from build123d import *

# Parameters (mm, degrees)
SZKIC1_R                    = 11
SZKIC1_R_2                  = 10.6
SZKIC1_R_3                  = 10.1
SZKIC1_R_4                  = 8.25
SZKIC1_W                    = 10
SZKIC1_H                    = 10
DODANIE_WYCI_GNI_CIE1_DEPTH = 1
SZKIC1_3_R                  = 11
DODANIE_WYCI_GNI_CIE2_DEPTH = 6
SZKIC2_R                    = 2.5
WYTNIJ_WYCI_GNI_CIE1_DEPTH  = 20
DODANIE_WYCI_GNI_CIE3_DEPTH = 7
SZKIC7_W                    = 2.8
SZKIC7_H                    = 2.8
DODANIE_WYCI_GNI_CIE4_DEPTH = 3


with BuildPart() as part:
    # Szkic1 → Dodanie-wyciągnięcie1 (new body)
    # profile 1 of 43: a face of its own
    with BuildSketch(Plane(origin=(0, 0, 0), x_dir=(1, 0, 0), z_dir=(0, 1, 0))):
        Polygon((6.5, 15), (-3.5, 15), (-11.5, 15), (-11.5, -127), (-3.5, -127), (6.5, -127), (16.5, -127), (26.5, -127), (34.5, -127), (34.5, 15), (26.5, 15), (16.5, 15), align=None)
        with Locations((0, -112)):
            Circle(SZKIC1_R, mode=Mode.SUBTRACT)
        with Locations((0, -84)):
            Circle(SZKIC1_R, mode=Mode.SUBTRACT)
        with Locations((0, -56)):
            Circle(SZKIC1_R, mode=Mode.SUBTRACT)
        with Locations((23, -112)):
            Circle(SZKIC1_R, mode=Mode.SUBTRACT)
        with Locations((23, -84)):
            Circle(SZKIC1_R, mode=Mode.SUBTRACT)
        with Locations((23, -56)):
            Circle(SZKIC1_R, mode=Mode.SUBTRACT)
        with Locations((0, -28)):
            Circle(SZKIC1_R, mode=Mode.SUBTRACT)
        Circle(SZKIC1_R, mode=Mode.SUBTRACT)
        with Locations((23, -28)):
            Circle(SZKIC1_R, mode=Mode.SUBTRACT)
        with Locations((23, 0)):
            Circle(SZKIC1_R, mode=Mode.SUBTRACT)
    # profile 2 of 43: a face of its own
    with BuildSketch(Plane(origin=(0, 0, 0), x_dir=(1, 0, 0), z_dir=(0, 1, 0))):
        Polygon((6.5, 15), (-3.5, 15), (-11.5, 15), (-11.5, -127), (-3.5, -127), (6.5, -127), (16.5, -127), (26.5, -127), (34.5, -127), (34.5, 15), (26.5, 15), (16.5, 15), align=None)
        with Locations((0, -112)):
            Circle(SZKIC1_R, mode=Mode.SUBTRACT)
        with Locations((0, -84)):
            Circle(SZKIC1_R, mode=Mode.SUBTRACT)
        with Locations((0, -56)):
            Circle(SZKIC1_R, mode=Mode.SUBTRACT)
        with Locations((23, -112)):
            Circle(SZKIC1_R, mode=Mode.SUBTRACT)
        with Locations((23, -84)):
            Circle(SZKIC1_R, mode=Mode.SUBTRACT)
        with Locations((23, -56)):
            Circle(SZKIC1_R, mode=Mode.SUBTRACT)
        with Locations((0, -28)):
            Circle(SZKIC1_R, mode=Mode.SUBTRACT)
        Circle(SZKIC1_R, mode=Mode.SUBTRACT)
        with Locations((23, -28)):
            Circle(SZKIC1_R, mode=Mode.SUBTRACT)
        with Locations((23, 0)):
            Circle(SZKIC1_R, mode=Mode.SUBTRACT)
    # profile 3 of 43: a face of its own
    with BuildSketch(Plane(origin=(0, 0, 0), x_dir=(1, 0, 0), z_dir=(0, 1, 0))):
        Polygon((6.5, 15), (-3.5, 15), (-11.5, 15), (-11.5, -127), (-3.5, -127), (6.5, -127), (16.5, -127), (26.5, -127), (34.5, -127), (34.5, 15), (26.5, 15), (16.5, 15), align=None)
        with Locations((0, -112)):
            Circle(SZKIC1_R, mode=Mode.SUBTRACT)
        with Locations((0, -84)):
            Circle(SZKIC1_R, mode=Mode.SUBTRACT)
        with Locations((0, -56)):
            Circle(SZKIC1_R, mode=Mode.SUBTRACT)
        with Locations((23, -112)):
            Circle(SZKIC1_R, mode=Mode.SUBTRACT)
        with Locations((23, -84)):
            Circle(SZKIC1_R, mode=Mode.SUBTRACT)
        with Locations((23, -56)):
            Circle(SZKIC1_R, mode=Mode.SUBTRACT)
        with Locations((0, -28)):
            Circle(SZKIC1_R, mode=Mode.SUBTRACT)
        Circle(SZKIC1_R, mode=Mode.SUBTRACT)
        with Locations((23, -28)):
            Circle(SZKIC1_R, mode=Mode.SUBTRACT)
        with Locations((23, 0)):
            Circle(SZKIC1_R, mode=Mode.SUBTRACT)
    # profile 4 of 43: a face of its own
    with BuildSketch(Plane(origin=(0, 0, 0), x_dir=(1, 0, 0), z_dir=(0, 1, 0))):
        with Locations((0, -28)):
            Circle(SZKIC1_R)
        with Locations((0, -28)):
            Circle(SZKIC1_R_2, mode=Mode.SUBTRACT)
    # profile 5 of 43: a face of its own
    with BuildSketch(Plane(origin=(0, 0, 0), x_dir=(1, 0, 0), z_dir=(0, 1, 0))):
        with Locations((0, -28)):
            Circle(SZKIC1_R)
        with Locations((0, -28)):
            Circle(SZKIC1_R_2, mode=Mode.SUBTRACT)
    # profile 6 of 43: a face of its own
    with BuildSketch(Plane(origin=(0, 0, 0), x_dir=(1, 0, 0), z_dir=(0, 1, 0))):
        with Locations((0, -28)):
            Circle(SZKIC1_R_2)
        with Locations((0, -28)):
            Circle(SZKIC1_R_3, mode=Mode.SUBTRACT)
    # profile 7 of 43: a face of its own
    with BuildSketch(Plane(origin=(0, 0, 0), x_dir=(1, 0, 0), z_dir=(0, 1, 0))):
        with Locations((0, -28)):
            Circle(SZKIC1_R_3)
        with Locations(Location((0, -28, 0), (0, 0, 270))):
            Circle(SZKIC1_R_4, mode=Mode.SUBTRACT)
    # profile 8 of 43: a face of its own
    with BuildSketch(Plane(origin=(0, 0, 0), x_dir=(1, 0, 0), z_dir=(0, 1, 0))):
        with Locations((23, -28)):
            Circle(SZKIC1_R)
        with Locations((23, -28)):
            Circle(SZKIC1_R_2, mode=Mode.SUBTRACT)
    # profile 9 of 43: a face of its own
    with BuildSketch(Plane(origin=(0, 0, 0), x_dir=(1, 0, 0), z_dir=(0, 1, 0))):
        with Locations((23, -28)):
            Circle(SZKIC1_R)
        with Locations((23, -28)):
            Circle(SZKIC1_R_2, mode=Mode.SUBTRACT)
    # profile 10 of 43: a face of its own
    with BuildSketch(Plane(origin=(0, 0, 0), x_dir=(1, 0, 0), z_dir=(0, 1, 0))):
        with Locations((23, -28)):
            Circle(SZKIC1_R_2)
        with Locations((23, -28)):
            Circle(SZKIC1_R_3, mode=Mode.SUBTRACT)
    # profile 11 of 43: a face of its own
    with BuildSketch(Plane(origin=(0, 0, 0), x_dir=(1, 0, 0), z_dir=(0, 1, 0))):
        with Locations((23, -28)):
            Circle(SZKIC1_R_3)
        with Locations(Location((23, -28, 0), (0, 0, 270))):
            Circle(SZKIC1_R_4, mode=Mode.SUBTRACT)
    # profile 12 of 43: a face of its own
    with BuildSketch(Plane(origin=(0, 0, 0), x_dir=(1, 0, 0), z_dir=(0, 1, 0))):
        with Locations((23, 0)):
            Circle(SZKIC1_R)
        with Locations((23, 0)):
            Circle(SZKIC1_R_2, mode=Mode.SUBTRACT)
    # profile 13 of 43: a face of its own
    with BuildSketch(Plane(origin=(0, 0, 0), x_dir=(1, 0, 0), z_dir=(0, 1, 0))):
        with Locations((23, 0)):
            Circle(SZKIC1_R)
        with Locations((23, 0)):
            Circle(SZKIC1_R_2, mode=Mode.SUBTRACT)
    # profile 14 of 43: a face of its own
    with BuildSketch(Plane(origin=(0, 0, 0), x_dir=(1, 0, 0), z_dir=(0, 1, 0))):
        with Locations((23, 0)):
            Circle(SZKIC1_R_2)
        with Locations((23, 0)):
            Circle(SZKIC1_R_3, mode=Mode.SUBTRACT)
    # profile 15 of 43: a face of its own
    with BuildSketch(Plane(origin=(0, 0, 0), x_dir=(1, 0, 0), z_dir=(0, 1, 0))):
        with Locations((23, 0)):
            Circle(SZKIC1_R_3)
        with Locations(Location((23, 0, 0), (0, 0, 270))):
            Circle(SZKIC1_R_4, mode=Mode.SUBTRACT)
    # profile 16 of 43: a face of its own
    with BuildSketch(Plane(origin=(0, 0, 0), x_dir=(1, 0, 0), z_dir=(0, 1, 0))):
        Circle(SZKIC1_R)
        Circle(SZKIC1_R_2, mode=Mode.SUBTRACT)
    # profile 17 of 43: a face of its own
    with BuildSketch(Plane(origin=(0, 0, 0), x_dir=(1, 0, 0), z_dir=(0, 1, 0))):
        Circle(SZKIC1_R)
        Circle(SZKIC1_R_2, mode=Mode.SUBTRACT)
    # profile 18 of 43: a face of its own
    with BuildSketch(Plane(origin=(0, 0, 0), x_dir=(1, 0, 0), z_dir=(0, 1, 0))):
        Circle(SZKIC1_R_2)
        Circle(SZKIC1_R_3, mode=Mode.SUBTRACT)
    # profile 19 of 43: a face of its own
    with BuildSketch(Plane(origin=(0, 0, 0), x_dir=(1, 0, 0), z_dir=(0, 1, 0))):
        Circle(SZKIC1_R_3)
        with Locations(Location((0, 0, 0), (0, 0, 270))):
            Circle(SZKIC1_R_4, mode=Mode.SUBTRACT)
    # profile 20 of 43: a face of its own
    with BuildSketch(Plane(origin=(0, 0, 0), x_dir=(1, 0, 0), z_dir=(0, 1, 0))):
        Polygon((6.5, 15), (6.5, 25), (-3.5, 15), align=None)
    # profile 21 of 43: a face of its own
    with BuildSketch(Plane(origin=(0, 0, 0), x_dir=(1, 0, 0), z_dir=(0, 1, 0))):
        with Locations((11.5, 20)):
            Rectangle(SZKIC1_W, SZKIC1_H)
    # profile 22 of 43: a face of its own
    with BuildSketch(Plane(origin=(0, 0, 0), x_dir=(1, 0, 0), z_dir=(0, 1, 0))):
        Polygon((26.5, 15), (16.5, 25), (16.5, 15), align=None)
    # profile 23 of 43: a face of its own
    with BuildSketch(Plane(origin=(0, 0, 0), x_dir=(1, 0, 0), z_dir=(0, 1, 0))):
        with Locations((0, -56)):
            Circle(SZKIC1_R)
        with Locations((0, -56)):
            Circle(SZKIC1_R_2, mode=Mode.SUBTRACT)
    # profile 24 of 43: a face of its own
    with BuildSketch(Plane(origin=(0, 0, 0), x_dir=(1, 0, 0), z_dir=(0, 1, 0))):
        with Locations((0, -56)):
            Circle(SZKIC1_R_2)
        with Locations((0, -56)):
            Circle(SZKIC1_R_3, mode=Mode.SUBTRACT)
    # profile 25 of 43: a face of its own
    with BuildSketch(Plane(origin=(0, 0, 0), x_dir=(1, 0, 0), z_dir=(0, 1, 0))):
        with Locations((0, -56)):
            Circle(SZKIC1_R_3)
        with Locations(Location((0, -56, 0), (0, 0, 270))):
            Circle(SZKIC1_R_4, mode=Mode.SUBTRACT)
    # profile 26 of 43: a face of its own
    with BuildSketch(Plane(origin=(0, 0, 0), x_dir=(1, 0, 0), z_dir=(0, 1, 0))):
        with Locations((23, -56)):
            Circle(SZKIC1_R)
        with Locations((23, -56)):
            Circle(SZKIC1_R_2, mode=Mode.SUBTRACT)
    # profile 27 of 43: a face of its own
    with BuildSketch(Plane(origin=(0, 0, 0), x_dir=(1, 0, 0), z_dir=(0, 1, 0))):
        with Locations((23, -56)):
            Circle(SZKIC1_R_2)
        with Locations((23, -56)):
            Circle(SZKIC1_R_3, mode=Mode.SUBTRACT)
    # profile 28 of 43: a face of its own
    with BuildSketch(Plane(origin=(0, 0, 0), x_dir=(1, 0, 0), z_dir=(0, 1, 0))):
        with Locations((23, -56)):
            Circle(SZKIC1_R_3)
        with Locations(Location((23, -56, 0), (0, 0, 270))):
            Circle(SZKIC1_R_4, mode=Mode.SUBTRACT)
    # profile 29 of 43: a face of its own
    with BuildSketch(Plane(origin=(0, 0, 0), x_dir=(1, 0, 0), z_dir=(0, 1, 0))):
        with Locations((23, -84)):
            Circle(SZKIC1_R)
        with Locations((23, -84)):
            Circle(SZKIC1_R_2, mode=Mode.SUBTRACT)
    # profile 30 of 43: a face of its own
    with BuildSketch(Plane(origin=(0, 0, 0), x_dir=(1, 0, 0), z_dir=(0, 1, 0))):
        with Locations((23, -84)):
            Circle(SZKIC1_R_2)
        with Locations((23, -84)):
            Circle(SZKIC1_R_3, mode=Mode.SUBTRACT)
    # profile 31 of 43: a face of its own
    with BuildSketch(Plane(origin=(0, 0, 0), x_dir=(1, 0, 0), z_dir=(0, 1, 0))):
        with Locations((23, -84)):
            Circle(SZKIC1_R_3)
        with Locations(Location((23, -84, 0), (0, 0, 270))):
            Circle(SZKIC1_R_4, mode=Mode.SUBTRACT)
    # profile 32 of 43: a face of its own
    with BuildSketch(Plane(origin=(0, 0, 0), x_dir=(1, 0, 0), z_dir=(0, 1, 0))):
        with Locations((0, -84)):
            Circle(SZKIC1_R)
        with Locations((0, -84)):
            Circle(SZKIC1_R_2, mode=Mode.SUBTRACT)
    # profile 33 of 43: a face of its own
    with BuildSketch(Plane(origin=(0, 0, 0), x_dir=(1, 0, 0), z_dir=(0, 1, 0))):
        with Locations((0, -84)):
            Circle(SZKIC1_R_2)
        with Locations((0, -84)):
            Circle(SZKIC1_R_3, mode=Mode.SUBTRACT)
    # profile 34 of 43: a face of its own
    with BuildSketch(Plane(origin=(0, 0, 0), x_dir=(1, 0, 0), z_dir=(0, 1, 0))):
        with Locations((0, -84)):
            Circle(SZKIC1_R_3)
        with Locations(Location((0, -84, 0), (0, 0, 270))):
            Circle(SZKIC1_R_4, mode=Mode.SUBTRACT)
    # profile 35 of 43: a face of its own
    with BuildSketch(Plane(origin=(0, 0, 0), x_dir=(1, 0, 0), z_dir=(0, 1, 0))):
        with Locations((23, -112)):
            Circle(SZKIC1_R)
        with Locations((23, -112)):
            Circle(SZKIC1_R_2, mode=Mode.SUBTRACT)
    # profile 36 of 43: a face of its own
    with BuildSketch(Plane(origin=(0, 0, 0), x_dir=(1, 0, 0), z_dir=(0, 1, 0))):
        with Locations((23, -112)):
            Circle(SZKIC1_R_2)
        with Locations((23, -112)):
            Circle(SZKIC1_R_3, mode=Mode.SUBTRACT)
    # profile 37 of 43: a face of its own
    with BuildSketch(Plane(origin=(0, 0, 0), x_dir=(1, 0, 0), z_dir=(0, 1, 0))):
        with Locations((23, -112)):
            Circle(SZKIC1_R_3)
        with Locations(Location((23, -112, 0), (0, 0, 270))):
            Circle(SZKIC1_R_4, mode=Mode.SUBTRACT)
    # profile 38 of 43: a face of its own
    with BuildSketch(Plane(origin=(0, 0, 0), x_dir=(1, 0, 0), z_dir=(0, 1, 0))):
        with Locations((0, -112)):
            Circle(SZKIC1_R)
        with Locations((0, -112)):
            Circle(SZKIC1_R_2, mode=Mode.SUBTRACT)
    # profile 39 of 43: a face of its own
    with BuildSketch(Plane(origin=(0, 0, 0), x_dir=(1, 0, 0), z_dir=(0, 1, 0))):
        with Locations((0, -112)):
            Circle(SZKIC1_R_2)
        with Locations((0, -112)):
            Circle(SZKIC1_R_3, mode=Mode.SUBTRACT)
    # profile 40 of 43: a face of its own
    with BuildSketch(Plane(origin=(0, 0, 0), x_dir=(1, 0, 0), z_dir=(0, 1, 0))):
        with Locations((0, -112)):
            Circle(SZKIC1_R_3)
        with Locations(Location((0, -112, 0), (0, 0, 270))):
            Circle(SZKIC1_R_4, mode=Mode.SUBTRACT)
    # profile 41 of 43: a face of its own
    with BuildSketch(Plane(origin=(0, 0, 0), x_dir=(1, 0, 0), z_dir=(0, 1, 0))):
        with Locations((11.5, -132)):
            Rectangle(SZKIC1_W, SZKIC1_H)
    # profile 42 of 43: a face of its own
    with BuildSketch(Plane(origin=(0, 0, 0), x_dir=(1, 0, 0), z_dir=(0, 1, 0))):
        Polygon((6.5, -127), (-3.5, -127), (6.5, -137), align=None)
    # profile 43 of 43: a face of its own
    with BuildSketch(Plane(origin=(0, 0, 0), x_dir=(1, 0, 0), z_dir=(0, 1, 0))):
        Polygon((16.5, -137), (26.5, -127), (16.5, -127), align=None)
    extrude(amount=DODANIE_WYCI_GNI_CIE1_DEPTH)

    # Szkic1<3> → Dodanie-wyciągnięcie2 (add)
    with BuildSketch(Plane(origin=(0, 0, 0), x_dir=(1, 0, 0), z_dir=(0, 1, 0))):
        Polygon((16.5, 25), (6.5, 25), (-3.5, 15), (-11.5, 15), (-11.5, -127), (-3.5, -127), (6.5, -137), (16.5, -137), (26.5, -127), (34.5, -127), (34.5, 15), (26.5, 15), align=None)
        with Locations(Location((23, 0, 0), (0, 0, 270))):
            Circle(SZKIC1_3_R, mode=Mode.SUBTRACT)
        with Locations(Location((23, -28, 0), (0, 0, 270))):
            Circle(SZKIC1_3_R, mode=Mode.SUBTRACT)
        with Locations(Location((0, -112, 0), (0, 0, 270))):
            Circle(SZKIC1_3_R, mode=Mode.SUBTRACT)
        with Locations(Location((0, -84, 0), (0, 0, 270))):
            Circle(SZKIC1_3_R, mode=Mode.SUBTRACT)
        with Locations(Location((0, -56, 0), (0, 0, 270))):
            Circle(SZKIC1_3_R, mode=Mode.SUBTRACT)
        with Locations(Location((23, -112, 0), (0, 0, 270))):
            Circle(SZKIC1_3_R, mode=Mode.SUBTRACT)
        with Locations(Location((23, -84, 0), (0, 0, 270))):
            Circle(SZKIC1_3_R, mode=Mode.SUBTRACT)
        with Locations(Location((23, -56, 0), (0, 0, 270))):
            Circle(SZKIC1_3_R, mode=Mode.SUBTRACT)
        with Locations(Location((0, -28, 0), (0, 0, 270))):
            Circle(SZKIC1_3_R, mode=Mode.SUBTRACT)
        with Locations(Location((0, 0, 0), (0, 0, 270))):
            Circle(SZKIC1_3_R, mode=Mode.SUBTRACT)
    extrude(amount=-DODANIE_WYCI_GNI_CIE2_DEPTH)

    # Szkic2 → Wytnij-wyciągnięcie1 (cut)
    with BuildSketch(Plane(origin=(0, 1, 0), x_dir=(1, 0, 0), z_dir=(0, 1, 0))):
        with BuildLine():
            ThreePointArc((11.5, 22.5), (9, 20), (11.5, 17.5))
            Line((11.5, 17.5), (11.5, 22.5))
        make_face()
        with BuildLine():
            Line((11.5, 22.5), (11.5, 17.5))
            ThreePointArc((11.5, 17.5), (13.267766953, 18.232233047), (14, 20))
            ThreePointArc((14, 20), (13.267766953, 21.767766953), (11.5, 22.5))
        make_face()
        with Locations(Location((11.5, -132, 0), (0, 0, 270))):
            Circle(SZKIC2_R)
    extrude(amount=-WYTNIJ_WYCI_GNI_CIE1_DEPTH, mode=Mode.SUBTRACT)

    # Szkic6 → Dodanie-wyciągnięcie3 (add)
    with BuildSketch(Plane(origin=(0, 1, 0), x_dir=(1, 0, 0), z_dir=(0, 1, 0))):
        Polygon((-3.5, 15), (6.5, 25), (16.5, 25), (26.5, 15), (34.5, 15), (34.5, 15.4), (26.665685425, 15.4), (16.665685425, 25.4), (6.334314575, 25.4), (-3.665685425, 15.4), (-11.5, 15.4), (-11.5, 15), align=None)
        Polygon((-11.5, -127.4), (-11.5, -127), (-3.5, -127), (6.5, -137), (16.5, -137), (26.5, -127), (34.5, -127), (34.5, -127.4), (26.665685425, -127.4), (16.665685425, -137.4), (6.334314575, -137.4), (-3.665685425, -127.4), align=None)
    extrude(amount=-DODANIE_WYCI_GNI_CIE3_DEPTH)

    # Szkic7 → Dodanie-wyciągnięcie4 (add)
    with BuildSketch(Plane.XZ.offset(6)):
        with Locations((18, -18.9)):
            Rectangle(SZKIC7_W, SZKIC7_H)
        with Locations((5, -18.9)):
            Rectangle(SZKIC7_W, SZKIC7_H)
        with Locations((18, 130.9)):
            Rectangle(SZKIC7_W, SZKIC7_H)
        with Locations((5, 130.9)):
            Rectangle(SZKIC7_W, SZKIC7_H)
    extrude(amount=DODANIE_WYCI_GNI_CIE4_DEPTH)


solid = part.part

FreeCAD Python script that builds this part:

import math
import FreeCAD as App
import Part
import Sketcher
from FreeCAD import Vector
Q = App.Units.Quantity

doc = App.newDocument("Part")
body = doc.addObject("PartDesign::Body", "Body")

sketch1 = body.newObject("Sketcher::SketchObject", "Sketch")
sketch1.AttachmentSupport = (doc.getObject("XZ_Plane"), [""])
sketch1.MapMode = "FlatFace"
sketch1.addGeometry(Part.LineSegment(Vector(-12, -15, 0), Vector(-12, 127, 0)), False)
sketch1.addGeometry(Part.LineSegment(Vector(-12, 127, 0), Vector(-4, 127, 0)), False)
sketch1.addGeometry(Part.LineSegment(Vector(-4, 127, 0), Vector(6, 137, 0)), False)
sketch1.addGeometry(Part.LineSegment(Vector(6, 137, 0), Vector(16, 137, 0)), False)
sketch1.addGeometry(Part.LineSegment(Vector(16, 137, 0), Vector(26, 127, 0)), False)
sketch1.addGeometry(Part.LineSegment(Vector(26, 127, 0), Vector(34, 127, 0)), False)
sketch1.addGeometry(Part.LineSegment(Vector(34, 127, 0), Vector(34, -15, 0)), False)
sketch1.addGeometry(Part.LineSegment(Vector(34, -15, 0), Vector(26, -15, 0)), False)
sketch1.addGeometry(Part.LineSegment(Vector(26, -15, 0), Vector(16, -25, 0)), False)
sketch1.addGeometry(Part.LineSegment(Vector(16, -25, 0), Vector(6, -25, 0)), False)
sketch1.addGeometry(Part.LineSegment(Vector(6, -25, 0), Vector(-4, -15, 0)), False)
sketch1.addGeometry(Part.LineSegment(Vector(-4, -15, 0), Vector(-12, -15, 0)), False)
sketch1.addGeometry(Part.Circle(Vector(0, 112, 0), Vector(0, 0, 1), 8), False)
sketch1.addGeometry(Part.Circle(Vector(0, 84, 0), Vector(0, 0, 1), 8), False)
sketch1.addGeometry(Part.Circle(Vector(23, 112, 0), Vector(0, 0, 1), 8), False)
sketch1.addGeometry(Part.Circle(Vector(23, 84, 0), Vector(0, 0, 1), 8), False)
sketch1.addGeometry(Part.Circle(Vector(0, 56, 0), Vector(0, 0, 1), 8), False)
sketch1.addGeometry(Part.Circle(Vector(0, 28, 0), Vector(0, 0, 1), 8), False)
sketch1.addGeometry(Part.Circle(Vector(0, 0, 0), Vector(0, 0, 1), 8), False)
sketch1.addGeometry(Part.Circle(Vector(23, 56, 0), Vector(0, 0, 1), 8), False)
sketch1.addGeometry(Part.Circle(Vector(23, 28, 0), Vector(0, 0, 1), 8), False)
sketch1.addGeometry(Part.Circle(Vector(23, 0, 0), Vector(0, 0, 1), 8), False)
sketch1.addConstraint(Sketcher.Constraint("Coincident", 0, 2, 1, 1))
sketch1.addConstraint(Sketcher.Constraint("Coincident", 1, 2, 2, 1))
sketch1.addConstraint(Sketcher.Constraint("Coincident", 2, 2, 3, 1))
sketch1.addConstraint(Sketcher.Constraint("Coincident", 3, 2, 4, 1))
sketch1.addConstraint(Sketcher.Constraint("Coincident", 4, 2, 5, 1))
sketch1.addConstraint(Sketcher.Constraint("Coincident", 5, 2, 6, 1))
sketch1.addConstraint(Sketcher.Constraint("Coincident", 6, 2, 7, 1))
sketch1.addConstraint(Sketcher.Constraint("Coincident", 7, 2, 8, 1))
sketch1.addConstraint(Sketcher.Constraint("Coincident", 8, 2, 9, 1))
sketch1.addConstraint(Sketcher.Constraint("Coincident", 9, 2, 10, 1))
sketch1.addConstraint(Sketcher.Constraint("Coincident", 10, 2, 11, 1))
sketch1.addConstraint(Sketcher.Constraint("Coincident", 11, 2, 0, 1))
sketch1.addConstraint(Sketcher.Constraint("Vertical", 0))
sketch1.addConstraint(Sketcher.Constraint("Horizontal", 1))
sketch1.addConstraint(Sketcher.Constraint("Horizontal", 3))
sketch1.addConstraint(Sketcher.Constraint("Horizontal", 5))
sketch1.addConstraint(Sketcher.Constraint("Vertical", 6))
sketch1.addConstraint(Sketcher.Constraint("Horizontal", 7))
sketch1.addConstraint(Sketcher.Constraint("Horizontal", 9))
sketch1.addConstraint(Sketcher.Constraint("Horizontal", 11))
sketch1.addConstraint(Sketcher.Constraint("Coincident", 18, 3, -1, 1))
sketch1.addConstraint(Sketcher.Constraint("Equal", 12, 13))
sketch1.addConstraint(Sketcher.Constraint("Equal", 13, 14))
sketch1.addConstraint(Sketcher.Constraint("Equal", 14, 15))
sketch1.addConstraint(Sketcher.Constraint("Equal", 15, 16))
sketch1.addConstraint(Sketcher.Constraint("Equal", 16, 17))
sketch1.addConstraint(Sketcher.Constraint("Equal", 17, 18))
sketch1.addConstraint(Sketcher.Constraint("Equal", 18, 19))
sketch1.addConstraint(Sketcher.Constraint("Equal", 19, 20))
sketch1.addConstraint(Sketcher.Constraint("Equal", 20, 21))
sketch1.addConstraint(Sketcher.Constraint("PointOnObject", 12, 3, -2))
sketch1.addConstraint(Sketcher.Constraint("PointOnObject", 13, 3, -2))
sketch1.addConstraint(Sketcher.Constraint("PointOnObject", 16, 3, -2))
sketch1.addConstraint(Sketcher.Constraint("PointOnObject", 17, 3, -2))
sketch1.addConstraint(Sketcher.Constraint("PointOnObject", 21, 3, -1))
sketch1.addConstraint(Sketcher.Constraint("Perpendicular", 2, 4))
sketch1.addConstraint(Sketcher.Constraint("Perpendicular", 4, 8))
sketch1.addConstraint(Sketcher.Constraint("Perpendicular", 8, 10))
sketch1.addConstraint(Sketcher.Constraint("Horizontal", 12, 3, 14, 3))
sketch1.addConstraint(Sketcher.Constraint("Horizontal", 13, 3, 15, 3))
sketch1.addConstraint(Sketcher.Constraint("Horizontal", 16, 3, 19, 3))
sketch1.addConstraint(Sketcher.Constraint("Horizontal", 17, 3, 20, 3))
sketch1.addConstraint(Sketcher.Constraint("Horizontal", 1, 2, 4, 2))
sketch1.addConstraint(Sketcher.Constraint("Horizontal", 7, 2, 10, 2))
sketch1.addConstraint(Sketcher.Constraint("Vertical", 14, 3, 15, 3))
sketch1.addConstraint(Sketcher.Constraint("Vertical", 15, 3, 19, 3))
sketch1.addConstraint(Sketcher.Constraint("Vertical", 19, 3, 20, 3))
sketch1.addConstraint(Sketcher.Constraint("Vertical", 20, 3, 21, 3))
sketch1.addConstraint(Sketcher.Constraint("Vertical", 4, 2, 7, 2))
sketch1.addConstraint(Sketcher.Constraint("Vertical", 3, 2, 8, 2))
sketch1.addConstraint(Sketcher.Constraint("Vertical", 2, 2, 9, 2))
sketch1.addConstraint(Sketcher.Constraint("Vertical", 1, 2, 10, 2))
sketch1.addConstraint(Sketcher.Constraint("Equal", 1, 5))
sketch1.addConstraint(Sketcher.Constraint("Diameter", 12, Q("16.5 mm")))
sketch1.addConstraint(Sketcher.Constraint("DistanceX", 1, 1, 1, 2, Q("8 mm")))
sketch1.addConstraint(Sketcher.Constraint("DistanceX", 3, 1, 3, 2, Q("10 mm")))
sketch1.addConstraint(Sketcher.Constraint("DistanceY", 0, 1, 0, 2, Q("142 mm")))
sketch1.addConstraint(Sketcher.Constraint("DistanceY", -1, 1, 12, 3, Q("112 mm")))
sketch1.addConstraint(Sketcher.Constraint("DistanceY", -1, 1, 13, 3, Q("84 mm")))
sketch1.addConstraint(Sketcher.Constraint("DistanceX", -1, 1, 14, 3, Q("23 mm")))
sketch1.addConstraint(Sketcher.Constraint("DistanceY", -1, 1, 16, 3, Q("56 mm")))
sketch1.addConstraint(Sketcher.Constraint("DistanceY", -1, 1, 17, 3, Q("28 mm")))
sketch1.addConstraint(Sketcher.Constraint("DistanceY", -1, 1, 0, 2, Q("127 mm")))
sketch1.addConstraint(Sketcher.Constraint("DistanceY", -1, 1, 2, 2, Q("137 mm")))
sketch1.addConstraint(Sketcher.Constraint("DistanceX", 0, 2, -1, 1, Q("11.5 mm")))
pad1 = body.newObject("PartDesign::Pad", "Pad")
pad1.Profile = sketch1
pad1.Length = 1
pad1.Reversed = True

sketch2 = body.newObject("Sketcher::SketchObject", "Sketch001")
sketch2.AttachmentSupport = (doc.getObject("XZ_Plane"), [""])
sketch2.MapMode = "FlatFace"
sketch2.addGeometry(Part.LineSegment(Vector(16, -25, 0), Vector(6, -25, 0)), False)
sketch2.addGeometry(Part.LineSegment(Vector(6, -25, 0), Vector(-4, -15, 0)), False)
sketch2.addGeometry(Part.LineSegment(Vector(-4, -15, 0), Vector(-12, -15, 0)), False)
sketch2.addGeometry(Part.LineSegment(Vector(-12, -15, 0), Vector(-12, 127, 0)), False)
sketch2.addGeometry(Part.LineSegment(Vector(-12, 127, 0), Vector(-4, 127, 0)), False)
sketch2.addGeometry(Part.LineSegment(Vector(-4, 127, 0), Vector(6, 137, 0)), False)
sketch2.addGeometry(Part.LineSegment(Vector(6, 137, 0), Vector(16, 137, 0)), False)
sketch2.addGeometry(Part.LineSegment(Vector(16, 137, 0), Vector(26, 127, 0)), False)
sketch2.addGeometry(Part.LineSegment(Vector(26, 127, 0), Vector(34, 127, 0)), False)
sketch2.addGeometry(Part.LineSegment(Vector(34, 127, 0), Vector(34, -15, 0)), False)
sketch2.addGeometry(Part.LineSegment(Vector(34, -15, 0), Vector(26, -15, 0)), False)
sketch2.addGeometry(Part.LineSegment(Vector(26, -15, 0), Vector(16, -25, 0)), False)
sketch2.addGeometry(Part.Circle(Vector(0, 112, 0), Vector(0, 0, 1), 11), False)
sketch2.addGeometry(Part.Circle(Vector(0, 84, 0), Vector(0, 0, 1), 11), False)
sketch2.addGeometry(Part.Circle(Vector(23, 112, 0), Vector(0, 0, 1), 11), False)
sketch2.addGeometry(Part.Circle(Vector(23, 84, 0), Vector(0, 0, 1), 11), False)
sketch2.addGeometry(Part.Circle(Vector(0, 56, 0), Vector(0, 0, 1), 11), False)
sketch2.addGeometry(Part.Circle(Vector(0, 28, 0), Vector(0, 0, 1), 11), False)
sketch2.addGeometry(Part.Circle(Vector(0, 0, 0), Vector(0, 0, 1), 11), False)
sketch2.addGeometry(Part.Circle(Vector(23, 56, 0), Vector(0, 0, 1), 11), False)
sketch2.addGeometry(Part.Circle(Vector(23, 28, 0), Vector(0, 0, 1), 11), False)
sketch2.addGeometry(Part.Circle(Vector(23, 0, 0), Vector(0, 0, 1), 11), False)
sketch2.addConstraint(Sketcher.Constraint("Coincident", 0, 2, 1, 1))
sketch2.addConstraint(Sketcher.Constraint("Coincident", 1, 2, 2, 1))
sketch2.addConstraint(Sketcher.Constraint("Coincident", 2, 2, 3, 1))
sketch2.addConstraint(Sketcher.Constraint("Coincident", 3, 2, 4, 1))
sketch2.addConstraint(Sketcher.Constraint("Coincident", 4, 2, 5, 1))
sketch2.addConstraint(Sketcher.Constraint("Coincident", 5, 2, 6, 1))
sketch2.addConstraint(Sketcher.Constraint("Coincident", 6, 2, 7, 1))
sketch2.addConstraint(Sketcher.Constraint("Coincident", 7, 2, 8, 1))
sketch2.addConstraint(Sketcher.Constraint("Coincident", 8, 2, 9, 1))
sketch2.addConstraint(Sketcher.Constraint("Coincident", 9, 2, 10, 1))
sketch2.addConstraint(Sketcher.Constraint("Coincident", 10, 2, 11, 1))
sketch2.addConstraint(Sketcher.Constraint("Coincident", 11, 2, 0, 1))
sketch2.addConstraint(Sketcher.Constraint("Horizontal", 0))
sketch2.addConstraint(Sketcher.Constraint("Horizontal", 2))
sketch2.addConstraint(Sketcher.Constraint("Vertical", 3))
sketch2.addConstraint(Sketcher.Constraint("Horizontal", 4))
sketch2.addConstraint(Sketcher.Constraint("Horizontal", 6))
sketch2.addConstraint(Sketcher.Constraint("Horizontal", 8))
sketch2.addConstraint(Sketcher.Constraint("Vertical", 9))
sketch2.addConstraint(Sketcher.Constraint("Horizontal", 10))
sketch2.addConstraint(Sketcher.Constraint("Coincident", 18, 3, -1, 1))
sketch2.addConstraint(Sketcher.Constraint("Equal", 12, 13))
sketch2.addConstraint(Sketcher.Constraint("Equal", 13, 14))
sketch2.addConstraint(Sketcher.Constraint("Equal", 14, 15))
sketch2.addConstraint(Sketcher.Constraint("Equal", 15, 16))
sketch2.addConstraint(Sketcher.Constraint("Equal", 16, 17))
sketch2.addConstraint(Sketcher.Constraint("Equal", 17, 18))
sketch2.addConstraint(Sketcher.Constraint("Equal", 18, 19))
sketch2.addConstraint(Sketcher.Constraint("Equal", 19, 20))
sketch2.addConstraint(Sketcher.Constraint("Equal", 20, 21))
sketch2.addConstraint(Sketcher.Constraint("PointOnObject", 12, 3, -2))
sketch2.addConstraint(Sketcher.Constraint("PointOnObject", 13, 3, -2))
sketch2.addConstraint(Sketcher.Constraint("PointOnObject", 16, 3, -2))
sketch2.addConstraint(Sketcher.Constraint("PointOnObject", 17, 3, -2))
sketch2.addConstraint(Sketcher.Constraint("PointOnObject", 21, 3, -1))
sketch2.addConstraint(Sketcher.Constraint("Perpendicular", 1, 5))
sketch2.addConstraint(Sketcher.Constraint("Perpendicular", 5, 7))
sketch2.addConstraint(Sketcher.Constraint("Perpendicular", 7, 11))
sketch2.addConstraint(Sketcher.Constraint("Horizontal", 12, 3, 14, 3))
sketch2.addConstraint(Sketcher.Constraint("Horizontal", 13, 3, 15, 3))
sketch2.addConstraint(Sketcher.Constraint("Horizontal", 16, 3, 19, 3))
sketch2.addConstraint(Sketcher.Constraint("Horizontal", 17, 3, 20, 3))
sketch2.addConstraint(Sketcher.Constraint("Horizontal", 4, 2, 7, 2))
sketch2.addConstraint(Sketcher.Constraint("Horizontal", 2, 2, 9, 2))
sketch2.addConstraint(Sketcher.Constraint("Vertical", 14, 3, 15, 3))
sketch2.addConstraint(Sketcher.Constraint("Vertical", 15, 3, 19, 3))
sketch2.addConstraint(Sketcher.Constraint("Vertical", 19, 3, 20, 3))
sketch2.addConstraint(Sketcher.Constraint("Vertical", 20, 3, 21, 3))
sketch2.addConstraint(Sketcher.Constraint("Vertical", 1, 2, 4, 2))
sketch2.addConstraint(Sketcher.Constraint("Vertical", 0, 2, 5, 2))
sketch2.addConstraint(Sketcher.Constraint("Vertical", 7, 2, 10, 2))
sketch2.addConstraint(Sketcher.Constraint("Vertical", 6, 2, 11, 2))
sketch2.addConstraint(Sketcher.Constraint("Equal", 4, 8))
sketch2.addConstraint(Sketcher.Constraint("Diameter", 12, Q("22 mm")))
sketch2.addConstraint(Sketcher.Constraint("DistanceX", 0, 2, 0, 1, Q("10 mm")))
sketch2.addConstraint(Sketcher.Constraint("DistanceX", 2, 2, 2, 1, Q("8 mm")))
sketch2.addConstraint(Sketcher.Constraint("DistanceY", 3, 1, 3, 2, Q("142 mm")))
sketch2.addConstraint(Sketcher.Constraint("DistanceY", -1, 1, 12, 3, Q("112 mm")))
sketch2.addConstraint(Sketcher.Constraint("DistanceY", -1, 1, 13, 3, Q("84 mm")))
sketch2.addConstraint(Sketcher.Constraint("DistanceX", -1, 1, 14, 3, Q("23 mm")))
sketch2.addConstraint(Sketcher.Constraint("DistanceY", -1, 1, 16, 3, Q("56 mm")))
sketch2.addConstraint(Sketcher.Constraint("DistanceY", -1, 1, 17, 3, Q("28 mm")))
sketch2.addConstraint(Sketcher.Constraint("DistanceY", 0, 2, -1, 1, Q("25 mm")))
sketch2.addConstraint(Sketcher.Constraint("DistanceY", 1, 2, -1, 1, Q("15 mm")))
sketch2.addConstraint(Sketcher.Constraint("DistanceX", -1, 1, 0, 2, Q("6.5 mm")))
pad2 = body.newObject("PartDesign::Pad", "Pad001")
pad2.Profile = sketch2
pad2.Length = 6

sketch3 = body.newObject("Sketcher::SketchObject", "Sketch002")
sketch3.AttachmentSupport = (doc.getObject("XZ_Plane"), [""])
sketch3.MapMode = "FlatFace"
sketch3.AttachmentOffset = App.Placement(Vector(0, 0, -1), App.Rotation())
sketch3.addGeometry(Part.ArcOfCircle(Part.Circle(Vector(11.5, -20, 0), Vector(0, 0, 1), 2.5), math.radians(90), math.radians(270)), False)
sketch3.addGeometry(Part.ArcOfCircle(Part.Circle(Vector(11.5, -20, 0), Vector(0, 0, 1), 2.5), math.radians(0), math.radians(90)), False)
sketch3.addGeometry(Part.ArcOfCircle(Part.Circle(Vector(11.5, -20, 0), Vector(0, 0, 1), 2.5), math.radians(-90), math.radians(0)), False)
sketch3.addGeometry(Part.Circle(Vector(11.5, 132, 0), Vector(0, 0, 1), 2.5), False)
sketch3.addConstraint(Sketcher.Constraint("Tangent", 0, 1, 1, 2))
sketch3.addConstraint(Sketcher.Constraint("Tangent", 1, 1, 2, 2))
sketch3.addConstraint(Sketcher.Constraint("Tangent", 2, 1, 0, 2))
sketch3.addConstraint(Sketcher.Constraint("Equal", 2, 3))
sketch3.addConstraint(Sketcher.Constraint("Horizontal", 2, 3, 1, 1))
sketch3.addConstraint(Sketcher.Constraint("Vertical", 2, 3, 3, 3))
sketch3.addConstraint(Sketcher.Constraint("Vertical", 3, 3, 0, 1))
sketch3.addConstraint(Sketcher.Constraint("Vertical", 0, 1, 2, 1))
sketch3.addConstraint(Sketcher.Constraint("Diameter", 3, Q("5 mm")))
sketch3.addConstraint(Sketcher.Constraint("DistanceY", 0, 3, -1, 1, Q("20 mm")))
sketch3.addConstraint(Sketcher.Constraint("DistanceY", -1, 1, 3, 3, Q("132 mm")))
sketch3.addConstraint(Sketcher.Constraint("DistanceX", -1, 1, 1, 1, Q("14 mm")))
pocket1 = body.newObject("PartDesign::Pocket", "Pocket")
pocket1.Profile = sketch3
pocket1.Length = 20
pocket1.Reversed = True

sketch4 = body.newObject("Sketcher::SketchObject", "Sketch003")
sketch4.AttachmentSupport = (doc.getObject("XZ_Plane"), [""])
sketch4.MapMode = "FlatFace"
sketch4.AttachmentOffset = App.Placement(Vector(0, 0, -1), App.Rotation())
sketch4.addGeometry(Part.LineSegment(Vector(-3.5, -15, 0), Vector(6.5, -25, 0)), False)
sketch4.addGeometry(Part.LineSegment(Vector(6.5, -25, 0), Vector(16.5, -25, 0)), False)
sketch4.addGeometry(Part.LineSegment(Vector(16.5, -25, 0), Vector(26.5, -15, 0)), False)
sketch4.addGeometry(Part.LineSegment(Vector(26.5, -15, 0), Vector(34.5, -15, 0)), False)
sketch4.addGeometry(Part.LineSegment(Vector(34.5, -15, 0), Vector(34.5, -15.4, 0)), False)
sketch4.addGeometry(Part.LineSegment(Vector(34.5, -15.4, 0), Vector(26.67, -15.4, 0)), False)
sketch4.addGeometry(Part.LineSegment(Vector(26.67, -15.4, 0), Vector(16.67, -25.4, 0)), False)
sketch4.addGeometry(Part.LineSegment(Vector(16.67, -25.4, 0), Vector(6.33, -25.4, 0)), False)
sketch4.addGeometry(Part.LineSegment(Vector(6.33, -25.4, 0), Vector(-3.67, -15.4, 0)), False)
sketch4.addGeometry(Part.LineSegment(Vector(-3.67, -15.4, 0), Vector(-11.5, -15.4, 0)), False)
sketch4.addGeometry(Part.LineSegment(Vector(-11.5, -15.4, 0), Vector(-11.5, -15, 0)), False)
sketch4.addGeometry(Part.LineSegment(Vector(-11.5, -15, 0), Vector(-3.5, -15, 0)), False)
sketch4.addGeometry(Part.LineSegment(Vector(-11.5, 127, 0), Vector(-11.5, 127.4, 0)), False)
sketch4.addGeometry(Part.LineSegment(Vector(-11.5, 127.4, 0), Vector(-3.67, 127.4, 0)), False)
sketch4.addGeometry(Part.LineSegment(Vector(-3.67, 127.4, 0), Vector(6.33, 137.4, 0)), False)
sketch4.addGeometry(Part.LineSegment(Vector(6.33, 137.4, 0), Vector(16.67, 137.4, 0)), False)
sketch4.addGeometry(Part.LineSegment(Vector(16.67, 137.4, 0), Vector(26.67, 127.4, 0)), False)
sketch4.addGeometry(Part.LineSegment(Vector(26.67, 127.4, 0), Vector(34.5, 127.4, 0)), False)
sketch4.addGeometry(Part.LineSegment(Vector(34.5, 127.4, 0), Vector(34.5, 127, 0)), False)
sketch4.addGeometry(Part.LineSegment(Vector(34.5, 127, 0), Vector(26.5, 127, 0)), False)
sketch4.addGeometry(Part.LineSegment(Vector(26.5, 127, 0), Vector(16.5, 137, 0)), False)
sketch4.addGeometry(Part.LineSegment(Vector(16.5, 137, 0), Vector(6.5, 137, 0)), False)
sketch4.addGeometry(Part.LineSegment(Vector(6.5, 137, 0), Vector(-3.5, 127, 0)), False)
sketch4.addGeometry(Part.LineSegment(Vector(-3.5, 127, 0), Vector(-11.5, 127, 0)), False)
sketch4.addConstraint(Sketcher.Constraint("Coincident", 0, 2, 1, 1))
sketch4.addConstraint(Sketcher.Constraint("Coincident", 1, 2, 2, 1))
sketch4.addConstraint(Sketcher.Constraint("Coincident", 2, 2, 3, 1))
sketch4.addConstraint(Sketcher.Constraint("Coincident", 3, 2, 4, 1))
sketch4.addConstraint(Sketcher.Constraint("Coincident", 4, 2, 5, 1))
sketch4.addConstraint(Sketcher.Constraint("Coincident", 5, 2, 6, 1))
sketch4.addConstraint(Sketcher.Constraint("Coincident", 6, 2, 7, 1))
sketch4.addConstraint(Sketcher.Constraint("Coincident", 7, 2, 8, 1))
sketch4.addConstraint(Sketcher.Constraint("Coincident", 8, 2, 9, 1))
sketch4.addConstraint(Sketcher.Constraint("Coincident", 9, 2, 10, 1))
sketch4.addConstraint(Sketcher.Constraint("Coincident", 10, 2, 11, 1))
sketch4.addConstraint(Sketcher.Constraint("Coincident", 11, 2, 0, 1))
sketch4.addConstraint(Sketcher.Constraint("Coincident", 12, 2, 13, 1))
sketch4.addConstraint(Sketcher.Constraint("Coincident", 13, 2, 14, 1))
sketch4.addConstraint(Sketcher.Constraint("Coincident", 14, 2, 15, 1))
sketch4.addConstraint(Sketcher.Constraint("Coincident", 15, 2, 16, 1))
sketch4.addConstraint(Sketcher.Constraint("Coincident", 16, 2, 17, 1))
sketch4.addConstraint(Sketcher.Constraint("Coincident", 17, 2, 18, 1))
sketch4.addConstraint(Sketcher.Constraint("Coincident", 18, 2, 19, 1))
sketch4.addConstraint(Sketcher.Constraint("Coincident", 19, 2, 20, 1))
sketch4.addConstraint(Sketcher.Constraint("Coincident", 20, 2, 21, 1))
sketch4.addConstraint(Sketcher.Constraint("Coincident", 21, 2, 22, 1))
sketch4.addConstraint(Sketcher.Constraint("Coincident", 22, 2, 23, 1))
sketch4.addConstraint(Sketcher.Constraint("Coincident", 23, 2, 12, 1))
sketch4.addConstraint(Sketcher.Constraint("Horizontal", 1))
sketch4.addConstraint(Sketcher.Constraint("Horizontal", 3))
sketch4.addConstraint(Sketcher.Constraint("Vertical", 4))
sketch4.addConstraint(Sketcher.Constraint("Horizontal", 5))
sketch4.addConstraint(Sketcher.Constraint("Horizontal", 7))
sketch4.addConstraint(Sketcher.Constraint("Horizontal", 9))
sketch4.addConstraint(Sketcher.Constraint("Vertical", 10))
sketch4.addConstraint(Sketcher.Constraint("Horizontal", 11))
sketch4.addConstraint(Sketcher.Constraint("Vertical", 12))
sketch4.addConstraint(Sketcher.Constraint("Horizontal", 13))
sketch4.addConstraint(Sketcher.Constraint("Horizontal", 15))
sketch4.addConstraint(Sketcher.Constraint("Horizontal", 17))
sketch4.addConstraint(Sketcher.Constraint("Vertical", 18))
sketch4.addConstraint(Sketcher.Constraint("Horizontal", 19))
sketch4.addConstraint(Sketcher.Constraint("Horizontal", 21))
sketch4.addConstraint(Sketcher.Constraint("Horizontal", 23))
sketch4.addConstraint(Sketcher.Constraint("Perpendicular", 0, 2))
sketch4.addConstraint(Sketcher.Constraint("Parallel", 2, 6))
sketch4.addConstraint(Sketcher.Constraint("Perpendicular", 6, 8))
sketch4.addConstraint(Sketcher.Constraint("Perpendicular", 8, 14))
sketch4.addConstraint(Sketcher.Constraint("Perpendicular", 14, 16))
sketch4.addConstraint(Sketcher.Constraint("Parallel", 16, 20))
sketch4.addConstraint(Sketcher.Constraint("Perpendicular", 20, 22))
sketch4.addConstraint(Sketcher.Constraint("Horizontal", 5, 2, 8, 2))
sketch4.addConstraint(Sketcher.Constraint("Horizontal", 3, 2, 10, 2))
sketch4.addConstraint(Sketcher.Constraint("Horizontal", 13, 2, 16, 2))
sketch4.addConstraint(Sketcher.Constraint("Horizontal", 19, 2, 22, 2))
sketch4.addConstraint(Sketcher.Constraint("Vertical", 10, 2, 12, 2))
sketch4.addConstraint(Sketcher.Constraint("Vertical", 8, 2, 13, 2))
sketch4.addConstraint(Sketcher.Constraint("Vertical", 7, 2, 14, 2))
sketch4.addConstraint(Sketcher.Constraint("Vertical", 6, 2, 15, 2))
sketch4.addConstraint(Sketcher.Constraint("Vertical", 5, 2, 16, 2))
sketch4.addConstraint(Sketcher.Constraint("Vertical", 4, 2, 17, 2))
sketch4.addConstraint(Sketcher.Constraint("Vertical", 2, 2, 19, 2))
sketch4.addConstraint(Sketcher.Constraint("Vertical", 1, 2, 20, 2))
sketch4.addConstraint(Sketcher.Constraint("Vertical", 0, 2, 21, 2))
sketch4.addConstraint(Sketcher.Constraint("Equal", 5, 9))
sketch4.addConstraint(Sketcher.Constraint("Equal", 3, 11))
sketch4.addConstraint(Sketcher.Constraint("Equal", 10, 12))
sketch4.addConstraint(Sketcher.Constraint("Equal", 2, 6))
sketch4.addConstraint(Sketcher.Constraint("DistanceX", 1, 1, 1, 2, Q("10 mm")))
sketch4.addConstraint(Sketcher.Constraint("DistanceX", 3, 1, 3, 2, Q("8 mm")))
sketch4.addConstraint(Sketcher.Constraint("DistanceY", 4, 2, 4, 1, Q("0.4 mm")))
sketch4.addConstraint(Sketcher.Constraint("DistanceY", 0, 2, -1, 1, Q("25 mm")))
sketch4.addConstraint(Sketcher.Constraint("DistanceY", 2, 2, -1, 1, Q("15 mm")))
sketch4.addConstraint(Sketcher.Constraint("DistanceY", -1, 1, 18, 2, Q("127 mm")))
sketch4.addConstraint(Sketcher.Constraint("DistanceX", -1, 1, 0, 2, Q("6.5 mm")))
sketch4.addConstraint(Sketcher.Constraint("DistanceX", 7, 2, 7, 1, Q("10.331371 mm")))
pad3 = body.newObject("PartDesign::Pad", "Pad002")
pad3.Profile = sketch4
pad3.Length = 7

sketch5 = body.newObject("Sketcher::SketchObject", "Sketch004")
sketch5.AttachmentSupport = (doc.getObject("XZ_Plane"), [""])
sketch5.MapMode = "FlatFace"
sketch5.AttachmentOffset = App.Placement(Vector(0, 0, 6), App.Rotation())
sketch5.addGeometry(Part.LineSegment(Vector(16.6, -17.5, 0), Vector(16.6, -20.3, 0)), False)
sketch5.addGeometry(Part.LineSegment(Vector(16.6, -20.3, 0), Vector(19.4, -20.3, 0)), False)
sketch5.addGeometry(Part.LineSegment(Vector(19.4, -20.3, 0), Vector(19.4, -17.5, 0)), False)
sketch5.addGeometry(Part.LineSegment(Vector(19.4, -17.5, 0), Vector(16.6, -17.5, 0)), False)
sketch5.addGeometry(Part.LineSegment(Vector(3.6, -17.5, 0), Vector(3.6, -20.3, 0)), False)
sketch5.addGeometry(Part.LineSegment(Vector(3.6, -20.3, 0), Vector(6.4, -20.3, 0)), False)
sketch5.addGeometry(Part.LineSegment(Vector(6.4, -20.3, 0), Vector(6.4, -17.5, 0)), False)
sketch5.addGeometry(Part.LineSegment(Vector(6.4, -17.5, 0), Vector(3.6, -17.5, 0)), False)
sketch5.addGeometry(Part.LineSegment(Vector(16.6, 132.3, 0), Vector(16.6, 129.5, 0)), False)
sketch5.addGeometry(Part.LineSegment(Vector(16.6, 129.5, 0), Vector(19.4, 129.5, 0)), False)
sketch5.addGeometry(Part.LineSegment(Vector(19.4, 129.5, 0), Vector(19.4, 132.3, 0)), False)
sketch5.addGeometry(Part.LineSegment(Vector(19.4, 132.3, 0), Vector(16.6, 132.3, 0)), False)
sketch5.addGeometry(Part.LineSegment(Vector(3.6, 132.3, 0), Vector(3.6, 129.5, 0)), False)
sketch5.addGeometry(Part.LineSegment(Vector(3.6, 129.5, 0), Vector(6.4, 129.5, 0)), False)
sketch5.addGeometry(Part.LineSegment(Vector(6.4, 129.5, 0), Vector(6.4, 132.3, 0)), False)
sketch5.addGeometry(Part.LineSegment(Vector(6.4, 132.3, 0), Vector(3.6, 132.3, 0)), False)
sketch5.addConstraint(Sketcher.Constraint("Coincident", 0, 2, 1, 1))
sketch5.addConstraint(Sketcher.Constraint("Coincident", 1, 2, 2, 1))
sketch5.addConstraint(Sketcher.Constraint("Coincident", 2, 2, 3, 1))
sketch5.addConstraint(Sketcher.Constraint("Coincident", 3, 2, 0, 1))
sketch5.addConstraint(Sketcher.Constraint("Coincident", 4, 2, 5, 1))
sketch5.addConstraint(Sketcher.Constraint("Coincident", 5, 2, 6, 1))
sketch5.addConstraint(Sketcher.Constraint("Coincident", 6, 2, 7, 1))
sketch5.addConstraint(Sketcher.Constraint("Coincident", 7, 2, 4, 1))
sketch5.addConstraint(Sketcher.Constraint("Coincident", 8, 2, 9, 1))
sketch5.addConstraint(Sketcher.Constraint("Coincident", 9, 2, 10, 1))
sketch5.addConstraint(Sketcher.Constraint("Coincident", 10, 2, 11, 1))
sketch5.addConstraint(Sketcher.Constraint("Coincident", 11, 2, 8, 1))
sketch5.addConstraint(Sketcher.Constraint("Coincident", 12, 2, 13, 1))
sketch5.addConstraint(Sketcher.Constraint("Coincident", 13, 2, 14, 1))
sketch5.addConstraint(Sketcher.Constraint("Coincident", 14, 2, 15, 1))
sketch5.addConstraint(Sketcher.Constraint("Coincident", 15, 2, 12, 1))
sketch5.addConstraint(Sketcher.Constraint("Vertical", 0))
sketch5.addConstraint(Sketcher.Constraint("Horizontal", 1))
sketch5.addConstraint(Sketcher.Constraint("Vertical", 2))
sketch5.addConstraint(Sketcher.Constraint("Horizontal", 3))
sketch5.addConstraint(Sketcher.Constraint("Vertical", 4))
sketch5.addConstraint(Sketcher.Constraint("Horizontal", 5))
sketch5.addConstraint(Sketcher.Constraint("Vertical", 6))
sketch5.addConstraint(Sketcher.Constraint("Horizontal", 7))
sketch5.addConstraint(Sketcher.Constraint("Vertical", 8))
sketch5.addConstraint(Sketcher.Constraint("Horizontal", 9))
sketch5.addConstraint(Sketcher.Constraint("Vertical", 10))
sketch5.addConstraint(Sketcher.Constraint("Horizontal", 11))
sketch5.addConstraint(Sketcher.Constraint("Vertical", 12))
sketch5.addConstraint(Sketcher.Constraint("Horizontal", 13))
sketch5.addConstraint(Sketcher.Constraint("Vertical", 14))
sketch5.addConstraint(Sketcher.Constraint("Horizontal", 15))
sketch5.addConstraint(Sketcher.Constraint("Horizontal", 1, 2, 4, 2))
sketch5.addConstraint(Sketcher.Constraint("Horizontal", 3, 2, 6, 2))
sketch5.addConstraint(Sketcher.Constraint("Horizontal", 9, 2, 12, 2))
sketch5.addConstraint(Sketcher.Constraint("Horizontal", 11, 2, 14, 2))
sketch5.addConstraint(Sketcher.Constraint("Vertical", 3, 2, 8, 2))
sketch5.addConstraint(Sketcher.Constraint("Vertical", 2, 2, 9, 2))
sketch5.addConstraint(Sketcher.Constraint("Vertical", 7, 2, 12, 2))
sketch5.addConstraint(Sketcher.Constraint("Vertical", 6, 2, 13, 2))
sketch5.addConstraint(Sketcher.Constraint("Equal", 3, 5))
sketch5.addConstraint(Sketcher.Constraint("Equal", 15, 0))
sketch5.addConstraint(Sketcher.Constraint("Equal", 6, 8))
sketch5.addConstraint(Sketcher.Constraint("DistanceX", 1, 1, 1, 2, Q("2.8 mm")))
sketch5.addConstraint(Sketcher.Constraint("DistanceX", 4, 2, 0, 2, Q("13 mm")))
sketch5.addConstraint(Sketcher.Constraint("DistanceY", 3, 2, 8, 2, Q("147 mm")))
sketch5.addConstraint(Sketcher.Constraint("DistanceX", -1, 1, 0, 2, Q("16.6 mm")))
sketch5.addConstraint(Sketcher.Constraint("DistanceY", 0, 2, -1, 1, Q("20.3 mm")))
pad4 = body.newObject("PartDesign::Pad", "Pad003")
pad4.Profile = sketch5
pad4.Length = 3

doc.recompute()
